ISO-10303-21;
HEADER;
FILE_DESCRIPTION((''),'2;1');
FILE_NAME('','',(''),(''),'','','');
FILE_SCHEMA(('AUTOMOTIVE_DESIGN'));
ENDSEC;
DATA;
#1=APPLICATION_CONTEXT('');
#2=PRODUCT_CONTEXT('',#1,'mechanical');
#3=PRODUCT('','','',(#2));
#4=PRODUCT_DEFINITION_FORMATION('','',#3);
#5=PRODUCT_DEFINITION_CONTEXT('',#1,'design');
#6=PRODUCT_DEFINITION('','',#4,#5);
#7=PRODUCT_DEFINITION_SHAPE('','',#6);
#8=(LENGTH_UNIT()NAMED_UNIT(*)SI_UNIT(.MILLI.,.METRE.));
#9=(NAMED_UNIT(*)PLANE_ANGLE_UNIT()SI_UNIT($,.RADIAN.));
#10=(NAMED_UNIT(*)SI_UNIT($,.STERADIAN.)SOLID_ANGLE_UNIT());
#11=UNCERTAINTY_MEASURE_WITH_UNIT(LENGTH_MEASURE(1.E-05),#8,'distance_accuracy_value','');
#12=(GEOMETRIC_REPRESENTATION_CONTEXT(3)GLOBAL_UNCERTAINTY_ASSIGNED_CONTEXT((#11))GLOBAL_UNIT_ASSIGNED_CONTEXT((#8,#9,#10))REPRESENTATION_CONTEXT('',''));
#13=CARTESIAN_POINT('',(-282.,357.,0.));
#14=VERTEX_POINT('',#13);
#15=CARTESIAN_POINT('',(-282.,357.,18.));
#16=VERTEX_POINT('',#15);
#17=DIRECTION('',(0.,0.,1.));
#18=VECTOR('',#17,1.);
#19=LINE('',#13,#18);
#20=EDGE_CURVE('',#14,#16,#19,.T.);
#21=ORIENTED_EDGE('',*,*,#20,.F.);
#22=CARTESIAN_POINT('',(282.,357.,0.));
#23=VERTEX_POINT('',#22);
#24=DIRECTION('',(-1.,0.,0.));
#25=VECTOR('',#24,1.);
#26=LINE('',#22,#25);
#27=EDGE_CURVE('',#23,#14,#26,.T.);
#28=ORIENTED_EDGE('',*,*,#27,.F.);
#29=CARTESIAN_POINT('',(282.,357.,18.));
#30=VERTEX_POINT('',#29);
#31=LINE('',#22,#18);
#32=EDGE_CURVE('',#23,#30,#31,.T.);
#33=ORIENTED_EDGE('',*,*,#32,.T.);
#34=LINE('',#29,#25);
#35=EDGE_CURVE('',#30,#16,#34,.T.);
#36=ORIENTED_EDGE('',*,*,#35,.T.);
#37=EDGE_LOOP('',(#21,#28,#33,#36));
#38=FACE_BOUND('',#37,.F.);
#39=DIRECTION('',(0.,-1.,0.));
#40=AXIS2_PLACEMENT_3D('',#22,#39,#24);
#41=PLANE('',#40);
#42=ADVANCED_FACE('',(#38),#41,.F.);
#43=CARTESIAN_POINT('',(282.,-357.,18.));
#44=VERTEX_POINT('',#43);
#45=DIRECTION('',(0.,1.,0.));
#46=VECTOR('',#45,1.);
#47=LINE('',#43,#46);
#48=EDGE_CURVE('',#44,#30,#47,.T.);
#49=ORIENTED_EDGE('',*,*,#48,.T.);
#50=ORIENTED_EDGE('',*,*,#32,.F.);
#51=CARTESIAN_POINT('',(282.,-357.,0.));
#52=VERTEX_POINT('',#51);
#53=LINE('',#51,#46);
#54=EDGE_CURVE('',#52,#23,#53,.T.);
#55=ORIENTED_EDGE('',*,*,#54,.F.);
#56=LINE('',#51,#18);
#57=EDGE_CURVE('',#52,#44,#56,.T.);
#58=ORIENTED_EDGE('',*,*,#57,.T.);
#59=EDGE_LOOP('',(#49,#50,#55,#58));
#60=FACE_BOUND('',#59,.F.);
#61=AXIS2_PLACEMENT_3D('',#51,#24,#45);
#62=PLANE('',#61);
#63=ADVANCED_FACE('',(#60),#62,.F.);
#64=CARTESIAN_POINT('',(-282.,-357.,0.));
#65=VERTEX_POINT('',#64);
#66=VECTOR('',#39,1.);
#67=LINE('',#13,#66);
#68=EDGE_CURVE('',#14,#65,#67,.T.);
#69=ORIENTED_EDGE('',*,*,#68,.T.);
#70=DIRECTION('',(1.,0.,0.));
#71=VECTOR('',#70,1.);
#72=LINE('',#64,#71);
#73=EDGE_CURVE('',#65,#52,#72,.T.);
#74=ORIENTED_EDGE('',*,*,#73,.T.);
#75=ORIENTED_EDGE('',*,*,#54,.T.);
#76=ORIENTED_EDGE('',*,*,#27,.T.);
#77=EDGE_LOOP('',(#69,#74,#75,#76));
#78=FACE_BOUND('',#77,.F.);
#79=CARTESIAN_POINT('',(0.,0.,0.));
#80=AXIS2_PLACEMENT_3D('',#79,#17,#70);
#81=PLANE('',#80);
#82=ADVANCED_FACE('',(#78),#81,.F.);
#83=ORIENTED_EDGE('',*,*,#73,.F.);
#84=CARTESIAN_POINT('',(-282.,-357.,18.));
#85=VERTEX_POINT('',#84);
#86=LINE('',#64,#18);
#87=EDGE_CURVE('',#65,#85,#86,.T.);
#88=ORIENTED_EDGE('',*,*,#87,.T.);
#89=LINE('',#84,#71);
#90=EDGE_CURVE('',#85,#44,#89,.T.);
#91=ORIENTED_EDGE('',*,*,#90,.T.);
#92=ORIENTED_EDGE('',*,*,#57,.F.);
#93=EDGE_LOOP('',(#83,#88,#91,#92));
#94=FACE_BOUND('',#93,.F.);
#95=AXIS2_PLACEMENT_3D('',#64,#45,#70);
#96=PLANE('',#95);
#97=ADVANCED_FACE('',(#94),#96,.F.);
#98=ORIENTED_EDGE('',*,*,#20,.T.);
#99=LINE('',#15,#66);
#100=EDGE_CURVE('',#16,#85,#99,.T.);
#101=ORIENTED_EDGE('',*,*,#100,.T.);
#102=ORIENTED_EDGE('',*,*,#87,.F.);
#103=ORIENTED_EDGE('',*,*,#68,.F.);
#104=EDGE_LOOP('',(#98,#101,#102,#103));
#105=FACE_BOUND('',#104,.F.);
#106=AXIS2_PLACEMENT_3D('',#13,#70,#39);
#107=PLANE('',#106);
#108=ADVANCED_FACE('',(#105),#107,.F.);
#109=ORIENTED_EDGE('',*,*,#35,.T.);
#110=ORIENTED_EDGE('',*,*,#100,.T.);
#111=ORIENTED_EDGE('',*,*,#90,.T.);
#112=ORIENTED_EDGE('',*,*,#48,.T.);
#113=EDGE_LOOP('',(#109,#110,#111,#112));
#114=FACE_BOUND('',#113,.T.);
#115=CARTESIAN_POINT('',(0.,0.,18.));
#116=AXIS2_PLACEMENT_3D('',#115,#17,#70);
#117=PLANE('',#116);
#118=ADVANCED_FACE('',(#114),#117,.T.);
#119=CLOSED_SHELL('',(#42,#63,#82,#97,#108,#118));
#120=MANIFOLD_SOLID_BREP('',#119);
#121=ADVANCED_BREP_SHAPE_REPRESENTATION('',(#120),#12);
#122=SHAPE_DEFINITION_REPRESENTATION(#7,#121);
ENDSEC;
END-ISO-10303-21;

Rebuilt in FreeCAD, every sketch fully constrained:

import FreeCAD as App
import Part
import Sketcher

V = App.Vector

doc = App.newDocument("Part")
params = doc.addObject("Spreadsheet::Sheet", "Params")
for row, (alias, value) in enumerate([
    ("sketch1_width", "564 mm"),
    ("sketch1_height", "714 mm"),
    ("pad1_length", "18 mm"),
], start=1):
    params.set(f"A{row}", alias)
    params.set(f"B{row}", "=" + value)
    params.setAlias(f"B{row}", alias)

body = doc.addObject("PartDesign::Body", "Body")

# Sketch on XY plane
sketch1 = doc.addObject("Sketcher::SketchObject", "Sketch")
body.addObject(sketch1)
sketch1.AttachmentSupport = (doc.XY_Plane, [""])
sketch1.MapMode = "FlatFace"
sketch1.addGeometry([
    Part.LineSegment(V(-282, 357, 0), V(-282, -357, 0)),
    Part.LineSegment(V(-282, -357, 0), V(282, -357, 0)),
    Part.LineSegment(V(282, -357, 0), V(282, 357, 0)),
    Part.LineSegment(V(282, 357, 0), V(-282, 357, 0)),
], False)
sketch1.addConstraint([
    Sketcher.Constraint("Coincident", 0, 2, 1, 1),
    Sketcher.Constraint("Coincident", 1, 2, 2, 1),
    Sketcher.Constraint("Coincident", 2, 2, 3, 1),
    Sketcher.Constraint("Coincident", 3, 2, 0, 1),
    Sketcher.Constraint("Vertical", 0),
    Sketcher.Constraint("Horizontal", 1),
    Sketcher.Constraint("Vertical", 2),
    Sketcher.Constraint("Horizontal", 3),
    Sketcher.Constraint("Symmetric", 0, 2, 2, 2, -1, 1),
    Sketcher.Constraint("DistanceX", 1, 1, 1, 2, 564.0),
    Sketcher.Constraint("DistanceY", 0, 2, 0, 1, 714.0),
])
sketch1.setExpression("Constraints[9]", "Params.sketch1_width")
sketch1.setExpression("Constraints[10]", "Params.sketch1_height")
pad1 = doc.addObject("PartDesign::Pad", "Pad")
body.addObject(pad1)
pad1.Profile = sketch1
pad1.setExpression("Length", "Params.pad1_length")

doc.recompute()
